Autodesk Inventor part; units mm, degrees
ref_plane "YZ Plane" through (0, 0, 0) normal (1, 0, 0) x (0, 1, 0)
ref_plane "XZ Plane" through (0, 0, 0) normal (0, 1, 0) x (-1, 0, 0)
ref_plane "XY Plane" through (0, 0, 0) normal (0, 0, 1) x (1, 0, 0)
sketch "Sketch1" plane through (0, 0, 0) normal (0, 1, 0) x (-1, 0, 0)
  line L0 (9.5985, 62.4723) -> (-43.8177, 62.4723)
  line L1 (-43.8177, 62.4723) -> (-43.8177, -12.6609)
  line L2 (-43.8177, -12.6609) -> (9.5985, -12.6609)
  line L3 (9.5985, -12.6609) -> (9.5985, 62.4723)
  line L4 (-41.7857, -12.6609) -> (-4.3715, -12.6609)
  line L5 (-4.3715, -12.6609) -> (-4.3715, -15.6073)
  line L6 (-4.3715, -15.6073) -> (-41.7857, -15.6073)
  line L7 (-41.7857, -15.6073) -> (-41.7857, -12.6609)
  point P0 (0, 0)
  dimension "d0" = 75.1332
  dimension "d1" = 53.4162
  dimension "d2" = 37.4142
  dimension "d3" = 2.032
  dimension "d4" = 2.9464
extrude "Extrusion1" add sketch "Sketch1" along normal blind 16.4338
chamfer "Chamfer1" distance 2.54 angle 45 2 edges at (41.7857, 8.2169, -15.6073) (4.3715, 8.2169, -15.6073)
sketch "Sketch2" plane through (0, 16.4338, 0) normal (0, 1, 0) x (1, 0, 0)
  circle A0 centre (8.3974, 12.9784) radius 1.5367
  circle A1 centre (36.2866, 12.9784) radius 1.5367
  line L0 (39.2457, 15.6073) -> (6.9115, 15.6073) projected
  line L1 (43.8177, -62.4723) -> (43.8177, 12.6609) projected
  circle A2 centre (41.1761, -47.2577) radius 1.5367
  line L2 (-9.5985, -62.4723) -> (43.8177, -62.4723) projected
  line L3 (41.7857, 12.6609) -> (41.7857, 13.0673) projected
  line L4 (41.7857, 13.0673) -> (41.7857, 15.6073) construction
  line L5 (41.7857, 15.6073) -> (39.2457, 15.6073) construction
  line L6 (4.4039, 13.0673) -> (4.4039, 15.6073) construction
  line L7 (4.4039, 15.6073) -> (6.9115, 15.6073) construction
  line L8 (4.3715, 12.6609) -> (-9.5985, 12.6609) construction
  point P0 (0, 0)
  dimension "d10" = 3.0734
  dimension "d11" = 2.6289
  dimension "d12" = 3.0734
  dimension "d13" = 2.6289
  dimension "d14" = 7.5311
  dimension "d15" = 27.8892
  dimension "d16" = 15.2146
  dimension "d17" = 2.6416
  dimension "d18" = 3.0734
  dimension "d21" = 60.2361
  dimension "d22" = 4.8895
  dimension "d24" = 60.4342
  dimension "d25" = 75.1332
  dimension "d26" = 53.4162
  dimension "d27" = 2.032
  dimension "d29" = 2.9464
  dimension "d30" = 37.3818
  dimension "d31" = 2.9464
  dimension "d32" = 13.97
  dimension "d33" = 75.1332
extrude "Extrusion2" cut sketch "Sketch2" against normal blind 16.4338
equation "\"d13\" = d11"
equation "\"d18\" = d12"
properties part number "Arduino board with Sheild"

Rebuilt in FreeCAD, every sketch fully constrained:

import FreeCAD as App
import Part
import Sketcher
from FreeCAD import Vector
Q = App.Units.Quantity


def edges_at(feature, points):
    """Names of the edges that pass closest to the given points."""
    edges = feature.Shape.Edges
    near = lambda p: min(range(len(edges)), key=lambda i: edges[i].distToShape(Part.Vertex(*p))[0])
    return sorted({f"Edge{near(p) + 1}" for p in points})


def add_polygon(sketch, points):
    """Adds a closed chain of lines whose ends are joined by coincident constraints."""
    first, n = sketch.GeometryCount, len(points)
    for a, b in zip(points, points[1:] + points[:1]):
        sketch.addGeometry(Part.LineSegment(App.Vector(*a, 0), App.Vector(*b, 0)), False)
    for i in range(n):
        sketch.addConstraint(Sketcher.Constraint("Coincident", first + i, 2, first + (i + 1) % n, 1))

doc = App.newDocument("Part")
params = doc.addObject("Spreadsheet::Sheet", "Params")
for row, (alias, value) in enumerate([
    ("sketch1_width", "0.08 in"),
    ("sketch1_width2", "2.103 in"),
    ("sketch1_width3", "1.473 in"),
    ("sketch1_height", "2.958 in"),
    ("sketch1_height2", "0.116 in"),
    ("pad1_length", "0.647 in"),
    ("chamfer_size", "0.1 in"),
    ("sketch2_diameter", "0.121 in"),
    ("pocket1_length", "0.647 in"),
], start=1):
    params.set(f"A{row}", alias)
    params.set(f"B{row}", "=" + value)
    params.setAlias(f"B{row}", alias)

body = doc.addObject("PartDesign::Body", "Body")

sketch1 = doc.addObject("Sketcher::SketchObject", "Sketch")
body.addObject(sketch1)
sketch1.AttachmentSupport = (doc.XZ_Plane, [""])
sketch1.MapMode = "FlatFace"
add_polygon(sketch1, [(-9.6, -12.7), (-9.6, 62.5), (43.8, 62.5), (43.8, -12.7), (41.8, -12.7), (41.8, -15.6), (4.4, -15.6), (4.4, -12.7)])
sketch1.addConstraint(Sketcher.Constraint("Vertical", 0))
sketch1.addConstraint(Sketcher.Constraint("Horizontal", 1))
sketch1.addConstraint(Sketcher.Constraint("Vertical", 2))
sketch1.addConstraint(Sketcher.Constraint("Horizontal", 3))
sketch1.addConstraint(Sketcher.Constraint("Vertical", 4))
sketch1.addConstraint(Sketcher.Constraint("Horizontal", 5))
sketch1.addConstraint(Sketcher.Constraint("Vertical", 6))
sketch1.addConstraint(Sketcher.Constraint("Horizontal", 7))
sketch1.addConstraint(Sketcher.Constraint("Horizontal", 3, 2, 6, 2))
sketch1.addConstraint(Sketcher.Constraint("DistanceX", 3, 2, 3, 1, Q("0.08 in")))
sketch1.addConstraint(Sketcher.Constraint("DistanceX", 1, 1, 1, 2, Q("2.103 in")))
sketch1.addConstraint(Sketcher.Constraint("DistanceX", 5, 2, 5, 1, Q("1.473 in")))
sketch1.addConstraint(Sketcher.Constraint("DistanceY", 0, 1, 0, 2, Q("2.958 in")))
sketch1.addConstraint(Sketcher.Constraint("DistanceY", 4, 2, 4, 1, Q("0.116 in")))
sketch1.addConstraint(Sketcher.Constraint("DistanceX", 0, 2, -1, 1, Q("0.3779 in")))
sketch1.addConstraint(Sketcher.Constraint("DistanceY", -1, 1, 0, 2, Q("62.4723 mm")))
sketch1.setExpression("Constraints[17]", "Params.sketch1_width")
sketch1.setExpression("Constraints[18]", "Params.sketch1_width2")
sketch1.setExpression("Constraints[19]", "Params.sketch1_width3")
sketch1.setExpression("Constraints[20]", "Params.sketch1_height")
sketch1.setExpression("Constraints[21]", "Params.sketch1_height2")
pad1 = doc.addObject("PartDesign::Pad", "Pad")
body.addObject(pad1)
pad1.Profile = sketch1
pad1.setExpression("Length", "Params.pad1_length")
pad1.Reversed = True
doc.recompute()

chamfer = doc.addObject("PartDesign::Chamfer", "Chamfer")
body.addObject(chamfer)
chamfer.Base = (pad1, edges_at(pad1, [(41.786, 8.217, -15.607), (4.372, 8.217, -15.607)]))
chamfer.setExpression("Size", "Params.chamfer_size")

sketch2 = doc.addObject("Sketcher::SketchObject", "Sketch001")
body.addObject(sketch2)
sketch2.AttachmentSupport = (doc.XZ_Plane, [""])
sketch2.MapMode = "FlatFace"
sketch2.AttachmentOffset = App.Placement(Vector(0, 0, -0.647 * 25.4), App.Rotation())
sketch2.addGeometry(Part.Circle(Vector(8.4, -13, 0), Vector(0, 0, 1), 1.5), False)
sketch2.addGeometry(Part.Circle(Vector(36.3, -13, 0), Vector(0, 0, 1), 1.5), False)
sketch2.addGeometry(Part.Circle(Vector(41.2, 47.3, 0), Vector(0, 0, 1), 1.5), False)
sketch2.addConstraint(Sketcher.Constraint("Equal", 0, 1))
sketch2.addConstraint(Sketcher.Constraint("Equal", 1, 2))
sketch2.addConstraint(Sketcher.Constraint("Horizontal", 0, 3, 1, 3))
sketch2.addConstraint(Sketcher.Constraint("Diameter", 0, Q("0.121 in")))
sketch2.addConstraint(Sketcher.Constraint("DistanceX", 0, 3, 1, 3, Q("1.098 in")))
sketch2.addConstraint(Sketcher.Constraint("DistanceX", 1, 3, 2, 3, Q("0.1925 in")))
sketch2.addConstraint(Sketcher.Constraint("DistanceY", 1, 3, 2, 3, Q("2.3715 in")))
sketch2.addConstraint(Sketcher.Constraint("DistanceX", -1, 1, 0, 3, Q("0.3306 in")))
sketch2.addConstraint(Sketcher.Constraint("DistanceY", 0, 3, -1, 1, Q("12.9784 mm")))
sketch2.setExpression("Constraints[3]", "Params.sketch2_diameter")
pocket1 = doc.addObject("PartDesign::Pocket", "Pocket")
body.addObject(pocket1)
pocket1.Profile = sketch2
pocket1.setExpression("Length", "Params.pocket1_length")
pocket1.Reversed = True

doc.recompute()
